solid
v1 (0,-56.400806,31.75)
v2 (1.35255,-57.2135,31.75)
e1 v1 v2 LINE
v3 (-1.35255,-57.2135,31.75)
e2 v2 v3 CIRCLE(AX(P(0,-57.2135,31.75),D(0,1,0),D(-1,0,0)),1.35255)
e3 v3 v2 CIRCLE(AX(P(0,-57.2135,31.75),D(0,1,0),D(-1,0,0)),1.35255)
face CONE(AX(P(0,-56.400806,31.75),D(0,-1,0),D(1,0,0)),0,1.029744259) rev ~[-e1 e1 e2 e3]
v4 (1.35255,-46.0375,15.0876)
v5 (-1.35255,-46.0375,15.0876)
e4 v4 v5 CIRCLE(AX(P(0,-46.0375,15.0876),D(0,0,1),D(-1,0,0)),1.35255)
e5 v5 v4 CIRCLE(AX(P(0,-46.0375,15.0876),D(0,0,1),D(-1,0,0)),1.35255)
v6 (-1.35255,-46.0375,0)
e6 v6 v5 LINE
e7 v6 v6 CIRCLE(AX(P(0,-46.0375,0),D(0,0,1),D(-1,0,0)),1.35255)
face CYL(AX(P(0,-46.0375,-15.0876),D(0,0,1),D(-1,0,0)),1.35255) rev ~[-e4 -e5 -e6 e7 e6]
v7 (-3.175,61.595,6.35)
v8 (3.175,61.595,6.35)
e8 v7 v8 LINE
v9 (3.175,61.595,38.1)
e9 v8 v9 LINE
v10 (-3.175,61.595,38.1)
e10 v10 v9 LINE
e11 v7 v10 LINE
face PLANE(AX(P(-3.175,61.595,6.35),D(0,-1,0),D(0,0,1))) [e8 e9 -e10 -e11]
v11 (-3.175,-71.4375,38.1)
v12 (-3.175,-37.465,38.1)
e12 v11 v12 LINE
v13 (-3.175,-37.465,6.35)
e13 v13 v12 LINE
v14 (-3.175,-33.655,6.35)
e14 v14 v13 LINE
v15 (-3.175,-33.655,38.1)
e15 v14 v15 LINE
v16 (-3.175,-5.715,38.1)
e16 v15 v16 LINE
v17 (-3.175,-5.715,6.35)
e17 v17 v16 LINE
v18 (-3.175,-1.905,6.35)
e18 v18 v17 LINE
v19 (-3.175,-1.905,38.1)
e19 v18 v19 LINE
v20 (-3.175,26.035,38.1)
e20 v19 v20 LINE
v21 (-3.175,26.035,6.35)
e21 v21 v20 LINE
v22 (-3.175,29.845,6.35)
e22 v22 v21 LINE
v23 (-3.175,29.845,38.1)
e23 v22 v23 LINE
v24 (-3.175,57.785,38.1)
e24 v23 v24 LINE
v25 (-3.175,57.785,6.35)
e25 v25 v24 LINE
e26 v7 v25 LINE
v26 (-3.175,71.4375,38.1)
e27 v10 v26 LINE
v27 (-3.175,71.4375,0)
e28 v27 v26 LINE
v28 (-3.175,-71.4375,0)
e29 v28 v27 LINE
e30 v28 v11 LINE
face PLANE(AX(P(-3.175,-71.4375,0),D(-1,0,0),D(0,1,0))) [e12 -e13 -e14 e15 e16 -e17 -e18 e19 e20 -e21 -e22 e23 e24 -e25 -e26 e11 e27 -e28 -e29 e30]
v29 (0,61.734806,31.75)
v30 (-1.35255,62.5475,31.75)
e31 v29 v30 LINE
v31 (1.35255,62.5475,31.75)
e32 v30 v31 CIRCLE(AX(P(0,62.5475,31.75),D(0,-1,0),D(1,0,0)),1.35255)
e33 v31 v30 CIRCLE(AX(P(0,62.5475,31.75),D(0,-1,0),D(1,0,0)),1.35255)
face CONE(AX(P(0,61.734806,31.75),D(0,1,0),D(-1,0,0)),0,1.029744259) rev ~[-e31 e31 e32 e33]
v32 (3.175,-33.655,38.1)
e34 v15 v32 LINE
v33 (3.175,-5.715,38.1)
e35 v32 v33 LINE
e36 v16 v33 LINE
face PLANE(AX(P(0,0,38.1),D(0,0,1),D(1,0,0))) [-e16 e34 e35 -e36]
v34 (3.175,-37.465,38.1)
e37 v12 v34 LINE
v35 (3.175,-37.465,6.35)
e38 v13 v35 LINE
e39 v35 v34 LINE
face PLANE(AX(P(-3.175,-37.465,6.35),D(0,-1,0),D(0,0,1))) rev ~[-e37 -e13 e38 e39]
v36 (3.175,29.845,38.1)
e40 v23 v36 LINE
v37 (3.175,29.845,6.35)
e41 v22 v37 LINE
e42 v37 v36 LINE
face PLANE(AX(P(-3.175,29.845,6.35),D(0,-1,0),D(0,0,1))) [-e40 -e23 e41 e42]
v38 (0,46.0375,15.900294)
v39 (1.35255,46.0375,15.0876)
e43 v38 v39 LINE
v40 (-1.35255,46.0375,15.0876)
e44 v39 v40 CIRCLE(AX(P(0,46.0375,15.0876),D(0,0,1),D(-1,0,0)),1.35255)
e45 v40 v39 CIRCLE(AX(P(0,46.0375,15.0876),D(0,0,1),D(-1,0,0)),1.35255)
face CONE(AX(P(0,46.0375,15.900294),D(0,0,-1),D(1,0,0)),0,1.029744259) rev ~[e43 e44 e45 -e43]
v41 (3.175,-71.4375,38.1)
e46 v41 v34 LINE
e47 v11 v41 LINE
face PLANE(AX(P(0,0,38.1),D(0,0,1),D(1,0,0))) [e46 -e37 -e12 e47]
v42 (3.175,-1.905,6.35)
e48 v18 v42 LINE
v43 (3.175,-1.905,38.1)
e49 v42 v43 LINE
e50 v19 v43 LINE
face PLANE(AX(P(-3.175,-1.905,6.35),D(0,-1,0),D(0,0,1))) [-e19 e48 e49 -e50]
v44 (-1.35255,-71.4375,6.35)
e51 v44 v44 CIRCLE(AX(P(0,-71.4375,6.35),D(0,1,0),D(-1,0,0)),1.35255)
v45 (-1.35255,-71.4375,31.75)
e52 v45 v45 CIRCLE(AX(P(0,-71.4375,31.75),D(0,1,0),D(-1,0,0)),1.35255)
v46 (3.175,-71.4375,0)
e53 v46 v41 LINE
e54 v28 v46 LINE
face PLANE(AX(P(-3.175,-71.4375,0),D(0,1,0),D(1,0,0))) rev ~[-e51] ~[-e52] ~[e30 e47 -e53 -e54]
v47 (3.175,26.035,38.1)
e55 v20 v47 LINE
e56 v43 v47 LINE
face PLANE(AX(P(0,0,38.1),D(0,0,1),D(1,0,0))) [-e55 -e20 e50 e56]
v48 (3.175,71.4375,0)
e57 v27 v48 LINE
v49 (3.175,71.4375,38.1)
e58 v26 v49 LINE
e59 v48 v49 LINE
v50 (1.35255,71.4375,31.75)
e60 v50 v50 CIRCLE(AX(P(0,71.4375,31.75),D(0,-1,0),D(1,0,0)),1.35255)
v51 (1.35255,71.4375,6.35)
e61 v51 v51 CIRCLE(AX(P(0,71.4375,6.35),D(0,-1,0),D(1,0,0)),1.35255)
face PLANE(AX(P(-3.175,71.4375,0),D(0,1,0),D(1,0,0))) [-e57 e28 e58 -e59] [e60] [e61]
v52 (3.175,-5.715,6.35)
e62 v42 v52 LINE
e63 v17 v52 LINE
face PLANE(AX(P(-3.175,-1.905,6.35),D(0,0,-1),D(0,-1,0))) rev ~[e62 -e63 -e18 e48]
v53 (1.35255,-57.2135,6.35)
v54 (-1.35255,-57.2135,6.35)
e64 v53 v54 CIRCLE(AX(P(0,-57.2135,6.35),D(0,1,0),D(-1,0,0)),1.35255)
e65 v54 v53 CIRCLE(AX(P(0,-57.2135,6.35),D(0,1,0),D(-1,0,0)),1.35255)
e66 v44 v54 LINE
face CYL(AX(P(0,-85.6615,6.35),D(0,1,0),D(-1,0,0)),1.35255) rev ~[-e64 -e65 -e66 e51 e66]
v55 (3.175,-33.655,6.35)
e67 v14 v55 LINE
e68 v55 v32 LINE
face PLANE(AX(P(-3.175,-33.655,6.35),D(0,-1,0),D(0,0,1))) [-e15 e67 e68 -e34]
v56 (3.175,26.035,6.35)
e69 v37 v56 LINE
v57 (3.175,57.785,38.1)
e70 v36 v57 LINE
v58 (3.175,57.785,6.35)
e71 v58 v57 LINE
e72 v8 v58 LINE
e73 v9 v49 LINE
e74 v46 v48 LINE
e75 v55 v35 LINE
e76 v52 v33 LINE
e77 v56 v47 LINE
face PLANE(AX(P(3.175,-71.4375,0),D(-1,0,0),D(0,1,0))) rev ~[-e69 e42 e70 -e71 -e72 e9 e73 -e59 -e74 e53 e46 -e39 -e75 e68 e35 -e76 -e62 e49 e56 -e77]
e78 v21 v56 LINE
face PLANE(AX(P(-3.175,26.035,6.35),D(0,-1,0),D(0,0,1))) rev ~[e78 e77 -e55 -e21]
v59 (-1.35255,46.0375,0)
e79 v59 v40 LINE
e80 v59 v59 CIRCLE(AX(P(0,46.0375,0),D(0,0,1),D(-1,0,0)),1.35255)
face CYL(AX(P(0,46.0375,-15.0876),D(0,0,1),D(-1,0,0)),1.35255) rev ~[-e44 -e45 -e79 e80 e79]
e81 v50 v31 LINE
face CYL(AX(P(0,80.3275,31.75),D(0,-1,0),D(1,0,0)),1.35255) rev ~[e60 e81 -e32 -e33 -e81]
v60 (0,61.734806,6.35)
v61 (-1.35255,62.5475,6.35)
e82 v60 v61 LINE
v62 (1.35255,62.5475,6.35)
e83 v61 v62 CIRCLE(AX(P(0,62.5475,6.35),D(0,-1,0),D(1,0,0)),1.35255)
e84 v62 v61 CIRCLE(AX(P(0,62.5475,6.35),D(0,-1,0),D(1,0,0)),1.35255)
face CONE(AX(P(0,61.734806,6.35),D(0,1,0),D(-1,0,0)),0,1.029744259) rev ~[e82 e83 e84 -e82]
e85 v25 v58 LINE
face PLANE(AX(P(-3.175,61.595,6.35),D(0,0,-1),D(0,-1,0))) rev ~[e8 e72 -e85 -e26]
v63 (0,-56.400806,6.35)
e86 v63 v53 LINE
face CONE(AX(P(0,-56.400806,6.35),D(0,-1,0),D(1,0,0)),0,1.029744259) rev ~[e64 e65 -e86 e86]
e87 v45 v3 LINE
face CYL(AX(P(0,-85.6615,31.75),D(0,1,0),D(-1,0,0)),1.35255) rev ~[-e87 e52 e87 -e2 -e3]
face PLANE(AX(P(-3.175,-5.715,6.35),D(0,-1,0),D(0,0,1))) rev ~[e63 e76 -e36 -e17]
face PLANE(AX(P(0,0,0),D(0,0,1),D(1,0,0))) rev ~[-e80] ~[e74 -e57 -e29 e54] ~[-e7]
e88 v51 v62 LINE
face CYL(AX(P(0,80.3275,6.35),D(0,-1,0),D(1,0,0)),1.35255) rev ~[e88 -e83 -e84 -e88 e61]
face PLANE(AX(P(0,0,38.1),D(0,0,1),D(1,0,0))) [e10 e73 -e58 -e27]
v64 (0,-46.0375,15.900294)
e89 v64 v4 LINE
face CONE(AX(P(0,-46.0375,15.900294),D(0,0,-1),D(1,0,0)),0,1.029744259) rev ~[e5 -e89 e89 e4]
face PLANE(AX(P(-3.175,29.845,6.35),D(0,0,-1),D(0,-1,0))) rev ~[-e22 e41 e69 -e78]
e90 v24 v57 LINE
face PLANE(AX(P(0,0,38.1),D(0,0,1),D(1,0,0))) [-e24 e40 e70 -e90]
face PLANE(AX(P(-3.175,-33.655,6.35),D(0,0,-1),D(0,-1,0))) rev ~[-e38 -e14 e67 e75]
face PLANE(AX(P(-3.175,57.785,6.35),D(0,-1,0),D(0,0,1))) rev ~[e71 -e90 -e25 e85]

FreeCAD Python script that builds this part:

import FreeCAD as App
import Part
import Sketcher
Q = App.Units.Quantity


def add_polygon(sketch, points):
    """Adds a closed chain of lines whose ends are joined by coincident constraints."""
    first, n = sketch.GeometryCount, len(points)
    for a, b in zip(points, points[1:] + points[:1]):
        sketch.addGeometry(Part.LineSegment(App.Vector(*a, 0), App.Vector(*b, 0)), False)
    for i in range(n):
        sketch.addConstraint(Sketcher.Constraint("Coincident", first + i, 2, first + (i + 1) % n, 1))

doc = App.newDocument("Part")
body = doc.addObject("PartDesign::Body", "Body")

sketch1 = body.newObject("Sketcher::SketchObject", "Sketch")
sketch1.AttachmentSupport = (doc.getObject("XY_Plane"), [""])
sketch1.MapMode = "FlatFace"
add_polygon(sketch1, [(-3, 71), (-3, -71), (3, -71), (3, 71)])
sketch1.addConstraint([
    Sketcher.Constraint("Vertical", 0),
    Sketcher.Constraint("Horizontal", 1),
    Sketcher.Constraint("Vertical", 2),
    Sketcher.Constraint("Horizontal", 3),
    Sketcher.Constraint("Symmetric", 0, 2, 2, 2, -1, 1),
    Sketcher.Constraint("DistanceX", 1, 1, 1, 2, Q("0.25 in")),
    Sketcher.Constraint("DistanceY", 0, 2, 0, 1, Q("5.625 in")),
])
pad1 = body.newObject("PartDesign::Pad", "Pad")
pad1.Profile = sketch1
pad1.Length = Q("1.5 in")

sketch2 = body.newObject("Sketcher::SketchObject", "Sketch001")
sketch2.AttachmentSupport = (doc.getObject("YZ_Plane"), [""])
sketch2.MapMode = "FlatFace"
sketch2.AttachmentOffset = App.Placement(App.Vector(0, 0, -0.125 * 25.4), App.Rotation())
add_polygon(sketch2, [(61.6, 38.1), (61.6, 6.3), (57.8, 6.3), (57.8, 38.1)])
add_polygon(sketch2, [(29.8, 38.1), (29.8, 6.3), (26, 6.3), (26, 38.1)])
add_polygon(sketch2, [(-1.9, 38.1), (-1.9, 6.3), (-5.7, 6.3), (-5.7, 38.1)])
add_polygon(sketch2, [(-33.7, 38.1), (-33.7, 6.3), (-37.5, 6.3), (-37.5, 38.1)])
sketch2.addConstraint([
    Sketcher.Constraint("Vertical", 0),
    Sketcher.Constraint("Horizontal", 1),
    Sketcher.Constraint("Vertical", 2),
    Sketcher.Constraint("Horizontal", 3),
    Sketcher.Constraint("Vertical", 4),
    Sketcher.Constraint("Horizontal", 5),
    Sketcher.Constraint("Vertical", 6),
    Sketcher.Constraint("Horizontal", 7),
    Sketcher.Constraint("Vertical", 8),
    Sketcher.Constraint("Horizontal", 9),
    Sketcher.Constraint("Vertical", 10),
    Sketcher.Constraint("Horizontal", 11),
    Sketcher.Constraint("Vertical", 12),
    Sketcher.Constraint("Horizontal", 13),
    Sketcher.Constraint("Vertical", 14),
    Sketcher.Constraint("Horizontal", 15),
    Sketcher.Constraint("Horizontal", 1, 2, 4, 2),
    Sketcher.Constraint("Horizontal", 3, 2, 6, 2),
    Sketcher.Constraint("Horizontal", 5, 2, 8, 2),
    Sketcher.Constraint("Horizontal", 7, 2, 10, 2),
    Sketcher.Constraint("Horizontal", 9, 2, 12, 2),
    Sketcher.Constraint("Horizontal", 11, 2, 14, 2),
    Sketcher.Constraint("Equal", 3, 5),
    Sketcher.Constraint("Equal", 7, 9),
    Sketcher.Constraint("Equal", 11, 13),
    Sketcher.Constraint("DistanceX", 1, 2, 1, 1, Q("0.15 in")),
    Sketcher.Constraint("DistanceY", 0, 2, 0, 1, Q("1.25 in")),
    Sketcher.Constraint("DistanceY", -1, 1, 2, 2, Q("1.5 in")),
    Sketcher.Constraint("DistanceX", 4, 2, 1, 2, Q("1.1 in")),
    Sketcher.Constraint("DistanceX", 8, 2, 5, 2, Q("1.1 in")),
    Sketcher.Constraint("DistanceX", 12, 2, 9, 2, Q("1.1 in")),
    Sketcher.Constraint("DistanceX", -1, 1, 0, 2, Q("2.425 in")),
])
pocket1 = body.newObject("PartDesign::Pocket", "Pocket")
pocket1.Profile = sketch2
pocket1.Type = "ThroughAll"
pocket1.Reversed = True

sketch3 = body.newObject("Sketcher::SketchObject", "Sketch002")
sketch3.AttachmentSupport = (doc.getObject("XY_Plane"), [""])
sketch3.MapMode = "FlatFace"
sketch3.addGeometry([
    Part.Circle(App.Vector(0, -46, 0), App.Vector(0, 0, 1), 1.4),
    Part.Circle(App.Vector(0, 46, 0), App.Vector(0, 0, 1), 1.4),
], False)
sketch3.addConstraint([
    Sketcher.Constraint("Equal", 0, 1),
    Sketcher.Constraint("Symmetric", 0, 3, 1, 3, -1, 1),
    Sketcher.Constraint("PointOnObject", 0, 3, -2),
    Sketcher.Constraint("Diameter", 0, Q("0.1065 in")),
    Sketcher.Constraint("DistanceY", 0, 3, -1, 1, Q("1.8125 in")),
])
doc.recompute()
hole = body.newObject("PartDesign::Hole", "Hole")
hole.Profile = sketch3
hole.ThreadType = "None"
hole.Diameter = Q("0.1065 in")
hole.DepthType = "Dimension"
hole.Depth = Q("0.594 in")
hole.DrillPoint = "Angled"
hole.DrillPointAngle = 118
hole.Reversed = True

sketch4 = body.newObject("Sketcher::SketchObject", "Sketch003")
sketch4.AttachmentSupport = (doc.getObject("XZ_Plane"), [""])
sketch4.MapMode = "FlatFace"
sketch4.AttachmentOffset = App.Placement(App.Vector(0, 0, 2.8125 * 25.4), App.Rotation())
sketch4.addGeometry([
    Part.Circle(App.Vector(0, 31.8, 0), App.Vector(0, 0, 1), 1.4),
    Part.Circle(App.Vector(0, 6.3, 0), App.Vector(0, 0, 1), 1.4),
], False)
sketch4.addConstraint([
    Sketcher.Constraint("Equal", 0, 1),
    Sketcher.Constraint("PointOnObject", 0, 3, -2),
    Sketcher.Constraint("PointOnObject", 1, 3, -2),
    Sketcher.Constraint("DistanceY", 1, 3, 0, 3, Q("1 in")),
    Sketcher.Constraint("Diameter", 0, Q("0.1065 in")),
    Sketcher.Constraint("DistanceY", -1, 1, 0, 3, Q("1.25 in")),
])
doc.recompute()
hole2 = body.newObject("PartDesign::Hole", "Hole001")
hole2.Profile = sketch4
hole2.ThreadType = "None"
hole2.Diameter = Q("0.1065 in")
hole2.DepthType = "Dimension"
hole2.Depth = Q("0.56 in")
hole2.DrillPoint = "Angled"
hole2.DrillPointAngle = 118

sketch5 = body.newObject("Sketcher::SketchObject", "Sketch004")
sketch5.AttachmentSupport = (doc.getObject("XZ_Plane"), [""])
sketch5.MapMode = "FlatFace"
sketch5.AttachmentOffset = App.Placement(App.Vector(0, 0, -2.8125 * 25.4), App.Rotation())
sketch5.addGeometry([
    Part.Circle(App.Vector(0, 31.8, 0), App.Vector(0, 0, 1), 1.4),
    Part.Circle(App.Vector(0, 6.3, 0), App.Vector(0, 0, 1), 1.4),
], False)
sketch5.addConstraint([
    Sketcher.Constraint("Equal", 0, 1),
    Sketcher.Constraint("PointOnObject", 0, 3, -2),
    Sketcher.Constraint("PointOnObject", 1, 3, -2),
    Sketcher.Constraint("DistanceY", 1, 3, 0, 3, Q("1 in")),
    Sketcher.Constraint("Diameter", 0, Q("0.1065 in")),
    Sketcher.Constraint("DistanceY", -1, 1, 0, 3, Q("1.25 in")),
])
doc.recompute()
hole3 = body.newObject("PartDesign::Hole", "Hole002")
hole3.Profile = sketch5
hole3.ThreadType = "None"
hole3.Diameter = Q("0.1065 in")
hole3.DepthType = "Dimension"
hole3.Depth = Q("0.35 in")
hole3.DrillPoint = "Angled"
hole3.DrillPointAngle = 118
hole3.Reversed = True

doc.recompute()
